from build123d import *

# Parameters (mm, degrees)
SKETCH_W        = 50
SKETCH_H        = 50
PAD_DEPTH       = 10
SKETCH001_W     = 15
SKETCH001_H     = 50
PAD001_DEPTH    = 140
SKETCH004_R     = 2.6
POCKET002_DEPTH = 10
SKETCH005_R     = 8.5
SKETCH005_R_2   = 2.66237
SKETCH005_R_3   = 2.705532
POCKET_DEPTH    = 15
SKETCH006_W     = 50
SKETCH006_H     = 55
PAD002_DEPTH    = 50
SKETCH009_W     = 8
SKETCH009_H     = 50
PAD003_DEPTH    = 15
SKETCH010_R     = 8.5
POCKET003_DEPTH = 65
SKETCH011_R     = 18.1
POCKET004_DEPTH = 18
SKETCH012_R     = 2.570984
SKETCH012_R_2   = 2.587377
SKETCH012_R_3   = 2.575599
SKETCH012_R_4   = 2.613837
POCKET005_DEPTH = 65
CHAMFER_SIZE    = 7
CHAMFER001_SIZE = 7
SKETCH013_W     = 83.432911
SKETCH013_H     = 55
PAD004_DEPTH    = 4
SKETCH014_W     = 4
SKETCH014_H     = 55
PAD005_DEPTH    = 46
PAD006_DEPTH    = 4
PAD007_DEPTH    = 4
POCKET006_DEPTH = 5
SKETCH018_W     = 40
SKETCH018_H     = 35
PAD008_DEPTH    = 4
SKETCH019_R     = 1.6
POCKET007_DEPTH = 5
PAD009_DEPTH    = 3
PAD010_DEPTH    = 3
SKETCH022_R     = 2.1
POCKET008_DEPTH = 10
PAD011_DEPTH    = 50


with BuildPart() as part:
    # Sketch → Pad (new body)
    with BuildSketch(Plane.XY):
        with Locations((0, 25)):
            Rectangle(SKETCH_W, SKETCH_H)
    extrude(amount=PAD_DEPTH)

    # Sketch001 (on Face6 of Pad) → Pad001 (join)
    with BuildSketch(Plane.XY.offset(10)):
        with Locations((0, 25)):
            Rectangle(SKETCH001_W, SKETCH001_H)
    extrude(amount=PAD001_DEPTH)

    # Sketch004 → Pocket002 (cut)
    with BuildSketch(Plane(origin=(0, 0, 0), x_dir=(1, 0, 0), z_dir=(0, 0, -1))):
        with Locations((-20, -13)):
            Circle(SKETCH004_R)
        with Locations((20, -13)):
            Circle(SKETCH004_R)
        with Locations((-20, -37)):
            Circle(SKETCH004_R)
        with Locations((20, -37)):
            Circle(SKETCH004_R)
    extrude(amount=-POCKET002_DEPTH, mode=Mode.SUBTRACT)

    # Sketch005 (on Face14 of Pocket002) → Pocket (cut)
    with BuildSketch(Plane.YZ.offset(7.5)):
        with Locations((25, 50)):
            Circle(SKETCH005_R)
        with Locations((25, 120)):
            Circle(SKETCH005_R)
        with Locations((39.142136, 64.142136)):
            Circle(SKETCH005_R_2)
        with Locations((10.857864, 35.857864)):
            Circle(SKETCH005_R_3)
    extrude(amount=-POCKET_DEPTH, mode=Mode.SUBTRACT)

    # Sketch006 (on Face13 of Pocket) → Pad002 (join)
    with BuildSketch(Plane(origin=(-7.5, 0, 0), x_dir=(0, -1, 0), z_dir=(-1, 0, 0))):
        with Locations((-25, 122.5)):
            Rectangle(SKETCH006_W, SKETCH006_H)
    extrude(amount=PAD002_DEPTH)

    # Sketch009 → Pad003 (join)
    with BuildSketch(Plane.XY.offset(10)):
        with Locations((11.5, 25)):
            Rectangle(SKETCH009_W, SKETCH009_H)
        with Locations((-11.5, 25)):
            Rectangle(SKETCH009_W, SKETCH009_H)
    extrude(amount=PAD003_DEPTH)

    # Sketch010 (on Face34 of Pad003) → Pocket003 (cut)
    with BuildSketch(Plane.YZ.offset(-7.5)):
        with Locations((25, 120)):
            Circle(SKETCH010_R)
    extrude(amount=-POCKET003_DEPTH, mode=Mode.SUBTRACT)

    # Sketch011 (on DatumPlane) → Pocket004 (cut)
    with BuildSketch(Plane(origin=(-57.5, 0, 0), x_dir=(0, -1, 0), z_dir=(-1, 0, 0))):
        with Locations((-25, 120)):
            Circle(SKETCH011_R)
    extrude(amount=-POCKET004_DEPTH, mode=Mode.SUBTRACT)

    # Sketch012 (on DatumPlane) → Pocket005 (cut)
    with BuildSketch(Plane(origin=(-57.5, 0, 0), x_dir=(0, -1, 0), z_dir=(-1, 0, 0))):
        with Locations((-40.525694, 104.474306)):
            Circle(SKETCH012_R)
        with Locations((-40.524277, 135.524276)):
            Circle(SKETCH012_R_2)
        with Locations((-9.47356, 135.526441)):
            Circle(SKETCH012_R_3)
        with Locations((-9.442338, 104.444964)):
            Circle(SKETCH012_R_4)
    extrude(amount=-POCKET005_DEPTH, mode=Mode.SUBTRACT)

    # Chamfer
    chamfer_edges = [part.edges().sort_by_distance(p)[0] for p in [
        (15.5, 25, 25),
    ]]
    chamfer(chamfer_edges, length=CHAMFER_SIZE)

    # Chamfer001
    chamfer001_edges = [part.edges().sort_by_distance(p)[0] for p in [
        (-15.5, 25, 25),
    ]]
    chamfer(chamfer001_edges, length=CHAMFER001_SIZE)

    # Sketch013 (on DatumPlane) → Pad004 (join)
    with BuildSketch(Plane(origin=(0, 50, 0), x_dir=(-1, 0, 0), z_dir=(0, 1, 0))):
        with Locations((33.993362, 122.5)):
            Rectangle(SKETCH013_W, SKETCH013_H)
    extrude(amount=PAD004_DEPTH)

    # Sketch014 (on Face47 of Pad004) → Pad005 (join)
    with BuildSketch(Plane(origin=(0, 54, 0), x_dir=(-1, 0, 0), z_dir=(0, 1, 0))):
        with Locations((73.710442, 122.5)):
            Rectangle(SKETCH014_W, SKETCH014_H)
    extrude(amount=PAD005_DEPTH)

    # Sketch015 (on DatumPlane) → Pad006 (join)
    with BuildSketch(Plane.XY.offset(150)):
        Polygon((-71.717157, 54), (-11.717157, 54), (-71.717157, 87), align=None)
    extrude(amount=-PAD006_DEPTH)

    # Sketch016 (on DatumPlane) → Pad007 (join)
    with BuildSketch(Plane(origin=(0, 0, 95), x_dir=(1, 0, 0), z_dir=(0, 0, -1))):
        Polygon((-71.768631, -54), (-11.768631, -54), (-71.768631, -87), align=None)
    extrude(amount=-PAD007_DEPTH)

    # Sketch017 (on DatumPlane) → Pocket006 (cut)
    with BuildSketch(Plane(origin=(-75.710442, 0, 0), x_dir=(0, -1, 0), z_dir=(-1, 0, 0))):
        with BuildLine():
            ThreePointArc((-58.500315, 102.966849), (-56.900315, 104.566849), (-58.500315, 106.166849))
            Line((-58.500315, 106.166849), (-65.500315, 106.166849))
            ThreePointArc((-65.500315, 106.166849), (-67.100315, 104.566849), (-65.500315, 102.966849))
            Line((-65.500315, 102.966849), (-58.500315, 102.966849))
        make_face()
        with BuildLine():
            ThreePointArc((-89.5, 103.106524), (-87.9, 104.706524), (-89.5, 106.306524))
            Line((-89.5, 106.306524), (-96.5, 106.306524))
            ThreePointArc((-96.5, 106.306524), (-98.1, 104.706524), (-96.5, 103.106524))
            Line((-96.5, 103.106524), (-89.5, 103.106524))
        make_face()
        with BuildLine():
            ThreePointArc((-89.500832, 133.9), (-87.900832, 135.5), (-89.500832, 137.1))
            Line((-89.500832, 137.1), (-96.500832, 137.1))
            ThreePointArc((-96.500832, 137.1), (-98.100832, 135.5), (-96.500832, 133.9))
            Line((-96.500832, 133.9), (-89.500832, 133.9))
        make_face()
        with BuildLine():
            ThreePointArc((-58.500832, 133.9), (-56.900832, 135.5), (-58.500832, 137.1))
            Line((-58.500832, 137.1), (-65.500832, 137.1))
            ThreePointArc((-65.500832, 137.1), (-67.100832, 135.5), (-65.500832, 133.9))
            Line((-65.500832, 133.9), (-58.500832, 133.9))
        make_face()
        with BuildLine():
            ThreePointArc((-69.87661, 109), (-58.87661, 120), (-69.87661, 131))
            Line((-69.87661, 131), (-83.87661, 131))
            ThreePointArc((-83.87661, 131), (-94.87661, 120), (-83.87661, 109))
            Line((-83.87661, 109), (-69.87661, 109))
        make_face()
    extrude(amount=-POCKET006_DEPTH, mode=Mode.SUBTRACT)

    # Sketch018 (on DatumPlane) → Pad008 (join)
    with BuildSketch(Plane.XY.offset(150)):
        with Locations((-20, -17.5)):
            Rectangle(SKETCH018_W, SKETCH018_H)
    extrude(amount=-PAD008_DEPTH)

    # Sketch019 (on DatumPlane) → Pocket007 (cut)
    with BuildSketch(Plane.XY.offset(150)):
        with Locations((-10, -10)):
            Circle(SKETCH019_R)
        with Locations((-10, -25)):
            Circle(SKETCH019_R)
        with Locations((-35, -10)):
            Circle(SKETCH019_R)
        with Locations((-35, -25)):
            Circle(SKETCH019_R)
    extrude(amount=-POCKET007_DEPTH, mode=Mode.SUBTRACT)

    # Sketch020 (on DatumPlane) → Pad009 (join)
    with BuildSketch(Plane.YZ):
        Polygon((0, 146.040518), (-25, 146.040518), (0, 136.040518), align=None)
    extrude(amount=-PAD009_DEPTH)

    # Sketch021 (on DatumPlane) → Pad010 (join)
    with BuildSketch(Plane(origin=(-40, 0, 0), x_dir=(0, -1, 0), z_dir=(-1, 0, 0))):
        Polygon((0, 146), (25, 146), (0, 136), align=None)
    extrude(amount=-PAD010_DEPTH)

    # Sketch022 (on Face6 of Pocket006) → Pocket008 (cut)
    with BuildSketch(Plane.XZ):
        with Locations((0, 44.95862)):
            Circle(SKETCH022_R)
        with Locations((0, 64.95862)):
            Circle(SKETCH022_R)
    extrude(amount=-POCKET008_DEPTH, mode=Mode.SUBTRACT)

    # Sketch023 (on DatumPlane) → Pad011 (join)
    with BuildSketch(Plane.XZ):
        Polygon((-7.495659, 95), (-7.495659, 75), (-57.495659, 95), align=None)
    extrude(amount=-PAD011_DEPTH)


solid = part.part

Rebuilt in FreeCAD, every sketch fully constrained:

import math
import FreeCAD as App
import Part
import Sketcher

V = App.Vector
Q = App.Units.Quantity


def edges_at(feature, points):
    """Names of the edges that pass closest to the given points."""
    edges = feature.Shape.Edges
    near = lambda p: min(range(len(edges)), key=lambda i: edges[i].distToShape(Part.Vertex(*p))[0])
    return sorted({f"Edge{near(p) + 1}" for p in points})


def add_polygon(sketch, points):
    """Adds a closed chain of lines whose ends are joined by coincident constraints."""
    first, n = sketch.GeometryCount, len(points)
    for a, b in zip(points, points[1:] + points[:1]):
        sketch.addGeometry(Part.LineSegment(App.Vector(*a, 0), App.Vector(*b, 0)), False)
    for i in range(n):
        sketch.addConstraint(Sketcher.Constraint("Coincident", first + i, 2, first + (i + 1) % n, 1))

doc = App.newDocument("Part")
body = doc.addObject("PartDesign::Body", "Body")

sketch1 = body.newObject("Sketcher::SketchObject", "Sketch")
sketch1.AttachmentSupport = (doc.getObject("XY_Plane"), [""])
sketch1.MapMode = "FlatFace"
add_polygon(sketch1, [(-25, 50), (-25, 0), (25, 0), (25, 50)])
sketch1.addConstraint(Sketcher.Constraint("Vertical", 0))
sketch1.addConstraint(Sketcher.Constraint("Horizontal", 1))
sketch1.addConstraint(Sketcher.Constraint("Vertical", 2))
sketch1.addConstraint(Sketcher.Constraint("Horizontal", 3))
sketch1.addConstraint(Sketcher.Constraint("Symmetric", 0, 2, 1, 2, -1, 1))
sketch1.addConstraint(Sketcher.Constraint("Equal", 3, 0))
sketch1.addConstraint(Sketcher.Constraint("DistanceX", 1, 1, 1, 2, Q("50 mm")))
pad1 = body.newObject("PartDesign::Pad", "Pad")
pad1.Profile = sketch1
pad1.Length = 10

sketch2 = body.newObject("Sketcher::SketchObject", "Sketch001")
sketch2.AttachmentSupport = (doc.getObject("XY_Plane"), [""])
sketch2.MapMode = "FlatFace"
sketch2.AttachmentOffset = App.Placement(V(0, 0, 10), App.Rotation())
add_polygon(sketch2, [(-8, 50), (-8, 0), (8, 0), (8, 50)])
sketch2.addConstraint(Sketcher.Constraint("Vertical", 0))
sketch2.addConstraint(Sketcher.Constraint("Horizontal", 1))
sketch2.addConstraint(Sketcher.Constraint("Vertical", 2))
sketch2.addConstraint(Sketcher.Constraint("Horizontal", 3))
sketch2.addConstraint(Sketcher.Constraint("Symmetric", 0, 2, 1, 2, -1, 1))
sketch2.addConstraint(Sketcher.Constraint("DistanceX", 1, 1, 1, 2, Q("15 mm")))
sketch2.addConstraint(Sketcher.Constraint("DistanceY", 0, 2, 0, 1, Q("50 mm")))
pad2 = body.newObject("PartDesign::Pad", "Pad001")
pad2.Profile = sketch2
pad2.Length = 140

sketch3 = body.newObject("Sketcher::SketchObject", "Sketch002")
sketch3.AttachmentSupport = (doc.getObject("XY_Plane"), [""])
sketch3.MapMode = "FlatFace"
sketch3.addGeometry(Part.Circle(V(-20, 13, 0), V(0, 0, 1), 2.6), False)
sketch3.addGeometry(Part.Circle(V(20, 13, 0), V(0, 0, 1), 2.6), False)
sketch3.addGeometry(Part.Circle(V(-20, 37, 0), V(0, 0, 1), 2.6), False)
sketch3.addGeometry(Part.Circle(V(20, 37, 0), V(0, 0, 1), 2.6), False)
sketch3.addConstraint(Sketcher.Constraint("Equal", 0, 1))
sketch3.addConstraint(Sketcher.Constraint("Equal", 1, 2))
sketch3.addConstraint(Sketcher.Constraint("Equal", 2, 3))
sketch3.addConstraint(Sketcher.Constraint("Symmetric", 0, 3, 1, 3, -2))
sketch3.addConstraint(Sketcher.Constraint("Symmetric", 2, 3, 3, 3, -2))
sketch3.addConstraint(Sketcher.Constraint("Vertical", 0, 3, 2, 3))
sketch3.addConstraint(Sketcher.Constraint("Diameter", 0, Q("5.2 mm")))
sketch3.addConstraint(Sketcher.Constraint("DistanceX", 0, 3, -1, 1, Q("20 mm")))
sketch3.addConstraint(Sketcher.Constraint("DistanceY", -1, 1, 0, 3, Q("13 mm")))
sketch3.addConstraint(Sketcher.Constraint("DistanceY", -1, 1, 2, 3, Q("37 mm")))
pocket1 = body.newObject("PartDesign::Pocket", "Pocket")
pocket1.Profile = sketch3
pocket1.Length = 10
pocket1.Reversed = True

sketch4 = body.newObject("Sketcher::SketchObject", "Sketch003")
sketch4.AttachmentSupport = (doc.getObject("YZ_Plane"), [""])
sketch4.MapMode = "FlatFace"
sketch4.AttachmentOffset = App.Placement(V(0, 0, 7.5), App.Rotation())
sketch4.addGeometry(Part.Circle(V(25, 50, 0), V(0, 0, 1), 8.5), False)
sketch4.addGeometry(Part.Circle(V(25, 120, 0), V(0, 0, 1), 8.5), False)
sketch4.addGeometry(Part.Circle(V(39.1, 64.1, 0), V(0, 0, 1), 2.7), False)
sketch4.addGeometry(Part.Circle(V(10.9, 35.9, 0), V(0, 0, 1), 2.7), False)
sketch4.addConstraint(Sketcher.Constraint("Equal", 0, 1))
sketch4.addConstraint(Sketcher.Constraint("Vertical", 0, 3, 1, 3))
sketch4.addConstraint(Sketcher.Constraint("Diameter", 0, Q("17 mm")))
sketch4.addConstraint(Sketcher.Constraint("DistanceX", -1, 1, 0, 3, Q("25 mm")))
sketch4.addConstraint(Sketcher.Constraint("DistanceY", -1, 1, 0, 3, Q("50 mm")))
sketch4.addConstraint(Sketcher.Constraint("DistanceY", -1, 1, 1, 3, Q("120 mm")))
sketch4.addConstraint(Sketcher.Constraint("Diameter", 2, Q("5.32474 mm")))
sketch4.addConstraint(Sketcher.Constraint("Diameter", 3, Q("5.411064 mm")))
sketch4.addConstraint(Sketcher.Constraint("DistanceY", 3, 3, 2, 3, Q("28.284272 mm")))
sketch4.addConstraint(Sketcher.Constraint("DistanceX", -1, 1, 2, 3, Q("39.142136 mm")))
sketch4.addConstraint(Sketcher.Constraint("DistanceY", -1, 1, 2, 3, Q("64.142136 mm")))
sketch4.addConstraint(Sketcher.Constraint("DistanceX", -1, 1, 3, 3, Q("10.857864 mm")))
pocket2 = body.newObject("PartDesign::Pocket", "Pocket001")
pocket2.Profile = sketch4
pocket2.Length = 15

sketch5 = body.newObject("Sketcher::SketchObject", "Sketch004")
sketch5.AttachmentSupport = (doc.getObject("YZ_Plane"), [""])
sketch5.MapMode = "FlatFace"
sketch5.AttachmentOffset = App.Placement(V(0, 0, -7.5), App.Rotation())
add_polygon(sketch5, [(50, 150), (50, 95), (0, 95), (0, 150)])
sketch5.addConstraint(Sketcher.Constraint("Vertical", 0))
sketch5.addConstraint(Sketcher.Constraint("Horizontal", 1))
sketch5.addConstraint(Sketcher.Constraint("Vertical", 2))
sketch5.addConstraint(Sketcher.Constraint("Horizontal", 3))
sketch5.addConstraint(Sketcher.Constraint("PointOnObject", 1, 2, -2))
sketch5.addConstraint(Sketcher.Constraint("DistanceX", 1, 2, 1, 1, Q("50 mm")))
sketch5.addConstraint(Sketcher.Constraint("DistanceY", 0, 2, 0, 1, Q("55 mm")))
sketch5.addConstraint(Sketcher.Constraint("DistanceY", -1, 1, 0, 2, Q("95 mm")))
pad3 = body.newObject("PartDesign::Pad", "Pad002")
pad3.Profile = sketch5
pad3.Length = 50
pad3.Reversed = True

sketch6 = body.newObject("Sketcher::SketchObject", "Sketch005")
sketch6.AttachmentSupport = (doc.getObject("XY_Plane"), [""])
sketch6.MapMode = "FlatFace"
sketch6.AttachmentOffset = App.Placement(V(0, 0, 10), App.Rotation())
add_polygon(sketch6, [(8, 50), (8, 0), (16, 0), (16, 50)])
add_polygon(sketch6, [(-16, 50), (-16, 0), (-8, 0), (-8, 50)])
sketch6.addConstraint(Sketcher.Constraint("Vertical", 0))
sketch6.addConstraint(Sketcher.Constraint("Horizontal", 1))
sketch6.addConstraint(Sketcher.Constraint("Vertical", 2))
sketch6.addConstraint(Sketcher.Constraint("Horizontal", 3))
sketch6.addConstraint(Sketcher.Constraint("Vertical", 4))
sketch6.addConstraint(Sketcher.Constraint("Horizontal", 5))
sketch6.addConstraint(Sketcher.Constraint("Vertical", 6))
sketch6.addConstraint(Sketcher.Constraint("Horizontal", 7))
sketch6.addConstraint(Sketcher.Constraint("Symmetric", 1, 2, 4, 2, -1, 1))
sketch6.addConstraint(Sketcher.Constraint("Symmetric", 0, 2, 5, 2, -2))
sketch6.addConstraint(Sketcher.Constraint("Horizontal", 3, 2, 6, 2))
sketch6.addConstraint(Sketcher.Constraint("DistanceX", 1, 1, 1, 2, Q("8 mm")))
sketch6.addConstraint(Sketcher.Constraint("DistanceY", 0, 2, 0, 1, Q("50 mm")))
sketch6.addConstraint(Sketcher.Constraint("DistanceX", 4, 2, 0, 2, Q("23 mm")))
pad4 = body.newObject("PartDesign::Pad", "Pad003")
pad4.Profile = sketch6
pad4.Length = 15

sketch7 = body.newObject("Sketcher::SketchObject", "Sketch006")
sketch7.AttachmentSupport = (doc.getObject("YZ_Plane"), [""])
sketch7.MapMode = "FlatFace"
sketch7.AttachmentOffset = App.Placement(V(0, 0, -7.5), App.Rotation())
sketch7.addGeometry(Part.Circle(V(25, 120, 0), V(0, 0, 1), 8), False)
sketch7.addConstraint(Sketcher.Constraint("Diameter", 0, Q("17 mm")))
sketch7.addConstraint(Sketcher.Constraint("DistanceX", -1, 1, 0, 3, Q("25 mm")))
sketch7.addConstraint(Sketcher.Constraint("DistanceY", -1, 1, 0, 3, Q("120 mm")))
pocket3 = body.newObject("PartDesign::Pocket", "Pocket002")
pocket3.Profile = sketch7
pocket3.Length = 65

sketch8 = body.newObject("Sketcher::SketchObject", "Sketch007")
sketch8.AttachmentSupport = (doc.getObject("YZ_Plane"), [""])
sketch8.MapMode = "FlatFace"
sketch8.AttachmentOffset = App.Placement(V(0, 0, -57.5), App.Rotation())
sketch8.addGeometry(Part.Circle(V(25, 120, 0), V(0, 0, 1), 18), False)
sketch8.addConstraint(Sketcher.Constraint("Diameter", 0, Q("36.2 mm")))
sketch8.addConstraint(Sketcher.Constraint("DistanceX", -1, 1, 0, 3, Q("25 mm")))
sketch8.addConstraint(Sketcher.Constraint("DistanceY", -1, 1, 0, 3, Q("120 mm")))
pocket4 = body.newObject("PartDesign::Pocket", "Pocket003")
pocket4.Profile = sketch8
pocket4.Length = 18
pocket4.Reversed = True

sketch9 = body.newObject("Sketcher::SketchObject", "Sketch008")
sketch9.AttachmentSupport = (doc.getObject("YZ_Plane"), [""])
sketch9.MapMode = "FlatFace"
sketch9.AttachmentOffset = App.Placement(V(0, 0, -57.5), App.Rotation())
sketch9.addGeometry(Part.Circle(V(40.5, 104.5, 0), V(0, 0, 1), 2.6), False)
sketch9.addGeometry(Part.Circle(V(40.5, 135.5, 0), V(0, 0, 1), 2.6), False)
sketch9.addGeometry(Part.Circle(V(9.5, 135.5, 0), V(0, 0, 1), 2.6), False)
sketch9.addGeometry(Part.Circle(V(9.4, 104.4, 0), V(0, 0, 1), 2.6), False)
sketch9.addConstraint(Sketcher.Constraint("Diameter", 0, Q("5.141968 mm")))
sketch9.addConstraint(Sketcher.Constraint("Diameter", 1, Q("5.174754 mm")))
sketch9.addConstraint(Sketcher.Constraint("Diameter", 2, Q("5.151198 mm")))
sketch9.addConstraint(Sketcher.Constraint("Diameter", 3, Q("5.227674 mm")))
sketch9.addConstraint(Sketcher.Constraint("DistanceX", -1, 1, 2, 3, Q("9.47356 mm")))
sketch9.addConstraint(Sketcher.Constraint("DistanceY", -1, 1, 2, 3, Q("135.526441 mm")))
sketch9.addConstraint(Sketcher.Constraint("DistanceY", 0, 3, 1, 3, Q("31.04997 mm")))
sketch9.addConstraint(Sketcher.Constraint("DistanceY", 3, 3, 0, 3, Q("0.029342 mm")))
sketch9.addConstraint(Sketcher.Constraint("DistanceX", 3, 3, 1, 3, Q("31.081939 mm")))
sketch9.addConstraint(Sketcher.Constraint("DistanceX", -1, 1, 0, 3, Q("40.525694 mm")))
sketch9.addConstraint(Sketcher.Constraint("DistanceY", -1, 1, 0, 3, Q("104.474306 mm")))
sketch9.addConstraint(Sketcher.Constraint("DistanceX", -1, 1, 1, 3, Q("40.524277 mm")))
pocket5 = body.newObject("PartDesign::Pocket", "Pocket004")
pocket5.Profile = sketch9
pocket5.Length = 65
pocket5.Reversed = True
doc.recompute()

chamfer = body.newObject("PartDesign::Chamfer", "Chamfer")
chamfer.Base = (pocket5, edges_at(pocket5, [(15.5, 25, 25)]))
chamfer.Size = 7
doc.recompute()

chamfer2 = body.newObject("PartDesign::Chamfer", "Chamfer001")
chamfer2.Base = (chamfer, edges_at(chamfer, [(-15.5, 25, 25)]))
chamfer2.Size = 7

sketch10 = body.newObject("Sketcher::SketchObject", "Sketch009")
sketch10.AttachmentSupport = (doc.getObject("XZ_Plane"), [""])
sketch10.MapMode = "FlatFace"
sketch10.AttachmentOffset = App.Placement(V(0, 0, -50), App.Rotation())
add_polygon(sketch10, [(8, 150), (8, 95), (-76, 95), (-76, 150)])
sketch10.addConstraint(Sketcher.Constraint("Vertical", 0))
sketch10.addConstraint(Sketcher.Constraint("Horizontal", 1))
sketch10.addConstraint(Sketcher.Constraint("Vertical", 2))
sketch10.addConstraint(Sketcher.Constraint("Horizontal", 3))
sketch10.addConstraint(Sketcher.Constraint("DistanceY", 0, 2, 0, 1, Q("55 mm")))
sketch10.addConstraint(Sketcher.Constraint("DistanceY", -1, 1, 0, 2, Q("95 mm")))
sketch10.addConstraint(Sketcher.Constraint("DistanceX", 1, 2, 1, 1, Q("83.432911 mm")))
sketch10.addConstraint(Sketcher.Constraint("DistanceX", -1, 1, 0, 2, Q("7.723094 mm")))
pad5 = body.newObject("PartDesign::Pad", "Pad004")
pad5.Profile = sketch10
pad5.Length = 4
pad5.Reversed = True

sketch11 = body.newObject("Sketcher::SketchObject", "Sketch010")
sketch11.AttachmentSupport = (doc.getObject("XZ_Plane"), [""])
sketch11.MapMode = "FlatFace"
sketch11.AttachmentOffset = App.Placement(V(0, 0, -54), App.Rotation())
add_polygon(sketch11, [(-71.7, 150), (-71.7, 95), (-75.7, 95), (-75.7, 150)])
sketch11.addConstraint(Sketcher.Constraint("Vertical", 0))
sketch11.addConstraint(Sketcher.Constraint("Horizontal", 1))
sketch11.addConstraint(Sketcher.Constraint("Vertical", 2))
sketch11.addConstraint(Sketcher.Constraint("Horizontal", 3))
sketch11.addConstraint(Sketcher.Constraint("DistanceX", 1, 2, 1, 1, Q("4 mm")))
sketch11.addConstraint(Sketcher.Constraint("DistanceY", 0, 2, 0, 1, Q("55 mm")))
sketch11.addConstraint(Sketcher.Constraint("DistanceY", -1, 1, 0, 2, Q("95 mm")))
sketch11.addConstraint(Sketcher.Constraint("DistanceX", 0, 2, -1, 1, Q("71.710442 mm")))
pad6 = body.newObject("PartDesign::Pad", "Pad005")
pad6.Profile = sketch11
pad6.Length = 46
pad6.Reversed = True

sketch12 = body.newObject("Sketcher::SketchObject", "Sketch011")
sketch12.AttachmentSupport = (doc.getObject("XY_Plane"), [""])
sketch12.MapMode = "FlatFace"
sketch12.AttachmentOffset = App.Placement(V(0, 0, 150), App.Rotation())
add_polygon(sketch12, [(-72, 54), (-12, 54), (-72, 87)])
sketch12.addConstraint(Sketcher.Constraint("Horizontal", 0))
sketch12.addConstraint(Sketcher.Constraint("Vertical", 2))
sketch12.addConstraint(Sketcher.Constraint("DistanceX", 0, 1, 0, 2, Q("60 mm")))
sketch12.addConstraint(Sketcher.Constraint("DistanceY", 2, 2, 2, 1, Q("33 mm")))
sketch12.addConstraint(Sketcher.Constraint("DistanceY", -1, 1, 0, 2, Q("54 mm")))
sketch12.addConstraint(Sketcher.Constraint("DistanceX", 0, 2, -1, 1, Q("11.717157 mm")))
pad7 = body.newObject("PartDesign::Pad", "Pad006")
pad7.Profile = sketch12
pad7.Length = 4
pad7.Reversed = True

sketch13 = body.newObject("Sketcher::SketchObject", "Sketch012")
sketch13.AttachmentSupport = (doc.getObject("XY_Plane"), [""])
sketch13.MapMode = "FlatFace"
sketch13.AttachmentOffset = App.Placement(V(0, 0, 95), App.Rotation())
add_polygon(sketch13, [(-12, 54), (-72, 54), (-72, 87)])
sketch13.addConstraint(Sketcher.Constraint("Horizontal", 0))
sketch13.addConstraint(Sketcher.Constraint("Vertical", 1))
sketch13.addConstraint(Sketcher.Constraint("DistanceX", 0, 2, 0, 1, Q("60 mm")))
sketch13.addConstraint(Sketcher.Constraint("DistanceY", 1, 1, 1, 2, Q("33 mm")))
sketch13.addConstraint(Sketcher.Constraint("DistanceY", -1, 1, 0, 2, Q("54 mm")))
sketch13.addConstraint(Sketcher.Constraint("DistanceX", 0, 2, -1, 1, Q("71.768631 mm")))
pad8 = body.newObject("PartDesign::Pad", "Pad007")
pad8.Profile = sketch13
pad8.Length = 4

sketch14 = body.newObject("Sketcher::SketchObject", "Sketch013")
sketch14.AttachmentSupport = (doc.getObject("YZ_Plane"), [""])
sketch14.MapMode = "FlatFace"
sketch14.AttachmentOffset = App.Placement(V(0, 0, -75.710442), App.Rotation())
sketch14.addGeometry(Part.ArcOfCircle(Part.Circle(V(58.5, 104.6, 0), V(0, 0, 1), 1.6), math.radians(90), math.radians(270)), False)
sketch14.addGeometry(Part.LineSegment(V(58.5, 106.2, 0), V(65.5, 106.2, 0)), False)
sketch14.addGeometry(Part.ArcOfCircle(Part.Circle(V(65.5, 104.6, 0), V(0, 0, 1), 1.6), math.radians(-90), math.radians(90)), False)
sketch14.addGeometry(Part.LineSegment(V(65.5, 103, 0), V(58.5, 103, 0)), False)
sketch14.addGeometry(Part.ArcOfCircle(Part.Circle(V(89.5, 104.7, 0), V(0, 0, 1), 1.6), math.radians(90), math.radians(270)), False)
sketch14.addGeometry(Part.LineSegment(V(89.5, 106.3, 0), V(96.5, 106.3, 0)), False)
sketch14.addGeometry(Part.ArcOfCircle(Part.Circle(V(96.5, 104.7, 0), V(0, 0, 1), 1.6), math.radians(-90), math.radians(90)), False)
sketch14.addGeometry(Part.LineSegment(V(96.5, 103.1, 0), V(89.5, 103.1, 0)), False)
sketch14.addGeometry(Part.ArcOfCircle(Part.Circle(V(89.5, 135.5, 0), V(0, 0, 1), 1.6), math.radians(90), math.radians(270)), False)
sketch14.addGeometry(Part.LineSegment(V(89.5, 137.1, 0), V(96.5, 137.1, 0)), False)
sketch14.addGeometry(Part.ArcOfCircle(Part.Circle(V(96.5, 135.5, 0), V(0, 0, 1), 1.6), math.radians(-90), math.radians(90)), False)
sketch14.addGeometry(Part.LineSegment(V(96.5, 133.9, 0), V(89.5, 133.9, 0)), False)
sketch14.addGeometry(Part.ArcOfCircle(Part.Circle(V(58.5, 135.5, 0), V(0, 0, 1), 1.6), math.radians(90), math.radians(270)), False)
sketch14.addGeometry(Part.LineSegment(V(58.5, 137.1, 0), V(65.5, 137.1, 0)), False)
sketch14.addGeometry(Part.ArcOfCircle(Part.Circle(V(65.5, 135.5, 0), V(0, 0, 1), 1.6), math.radians(-90), math.radians(90)), False)
sketch14.addGeometry(Part.LineSegment(V(65.5, 133.9, 0), V(58.5, 133.9, 0)), False)
sketch14.addGeometry(Part.ArcOfCircle(Part.Circle(V(69.9, 120, 0), V(0, 0, 1), 11), math.radians(90), math.radians(270)), False)
sketch14.addGeometry(Part.LineSegment(V(69.9, 131, 0), V(83.9, 131, 0)), False)
sketch14.addGeometry(Part.ArcOfCircle(Part.Circle(V(83.9, 120, 0), V(0, 0, 1), 11), math.radians(-90), math.radians(90)), False)
sketch14.addGeometry(Part.LineSegment(V(83.9, 109, 0), V(69.9, 109, 0)), False)
sketch14.addConstraint(Sketcher.Constraint("Tangent", 0, 1, 1, 1))
sketch14.addConstraint(Sketcher.Constraint("Tangent", 1, 2, 2, 2))
sketch14.addConstraint(Sketcher.Constraint("Tangent", 2, 1, 3, 1))
sketch14.addConstraint(Sketcher.Constraint("Tangent", 3, 2, 0, 2))
sketch14.addConstraint(Sketcher.Constraint("Tangent", 4, 1, 5, 1))
sketch14.addConstraint(Sketcher.Constraint("Tangent", 5, 2, 6, 2))
sketch14.addConstraint(Sketcher.Constraint("Tangent", 6, 1, 7, 1))
sketch14.addConstraint(Sketcher.Constraint("Tangent", 7, 2, 4, 2))
sketch14.addConstraint(Sketcher.Constraint("Tangent", 8, 1, 9, 1))
sketch14.addConstraint(Sketcher.Constraint("Tangent", 9, 2, 10, 2))
sketch14.addConstraint(Sketcher.Constraint("Tangent", 10, 1, 11, 1))
sketch14.addConstraint(Sketcher.Constraint("Tangent", 11, 2, 8, 2))
sketch14.addConstraint(Sketcher.Constraint("Tangent", 12, 1, 13, 1))
sketch14.addConstraint(Sketcher.Constraint("Tangent", 13, 2, 14, 2))
sketch14.addConstraint(Sketcher.Constraint("Tangent", 14, 1, 15, 1))
sketch14.addConstraint(Sketcher.Constraint("Tangent", 15, 2, 12, 2))
sketch14.addConstraint(Sketcher.Constraint("Tangent", 16, 1, 17, 1))
sketch14.addConstraint(Sketcher.Constraint("Tangent", 17, 2, 18, 2))
sketch14.addConstraint(Sketcher.Constraint("Tangent", 18, 1, 19, 1))
sketch14.addConstraint(Sketcher.Constraint("Tangent", 19, 2, 16, 2))
sketch14.addConstraint(Sketcher.Constraint("Horizontal", 1))
sketch14.addConstraint(Sketcher.Constraint("Horizontal", 3))
sketch14.addConstraint(Sketcher.Constraint("Horizontal", 5))
sketch14.addConstraint(Sketcher.Constraint("Horizontal", 7))
sketch14.addConstraint(Sketcher.Constraint("Horizontal", 9))
sketch14.addConstraint(Sketcher.Constraint("Horizontal", 11))
sketch14.addConstraint(Sketcher.Constraint("Horizontal", 13))
sketch14.addConstraint(Sketcher.Constraint("Horizontal", 15))
sketch14.addConstraint(Sketcher.Constraint("Horizontal", 17))
sketch14.addConstraint(Sketcher.Constraint("Horizontal", 19))
sketch14.addConstraint(Sketcher.Constraint("Equal", 2, 4))
sketch14.addConstraint(Sketcher.Constraint("Equal", 6, 8))
sketch14.addConstraint(Sketcher.Constraint("Equal", 10, 12))
sketch14.addConstraint(Sketcher.Constraint("Horizontal", 10, 3, 12, 3))
sketch14.addConstraint(Sketcher.Constraint("Equal", 3, 5))
sketch14.addConstraint(Sketcher.Constraint("Equal", 7, 9))
sketch14.addConstraint(Sketcher.Constraint("Equal", 11, 13))
sketch14.addConstraint(Sketcher.Constraint("Radius", 16, Q("11 mm")))
sketch14.addConstraint(Sketcher.Constraint("Radius", 0, Q("1.6 mm")))
sketch14.addConstraint(Sketcher.Constraint("DistanceX", 1, 1, 1, 2, Q("7 mm")))
sketch14.addConstraint(Sketcher.Constraint("DistanceX", 17, 1, 17, 2, Q("14 mm")))
sketch14.addConstraint(Sketcher.Constraint("DistanceY", -1, 1, 16, 3, Q("120 mm")))
sketch14.addConstraint(Sketcher.Constraint("DistanceX", 12, 3, 8, 3, Q("31 mm")))
sketch14.addConstraint(Sketcher.Constraint("DistanceX", -1, 1, 4, 3, Q("89.5 mm")))
sketch14.addConstraint(Sketcher.Constraint("DistanceY", -1, 1, 8, 3, Q("135.5 mm")))
sketch14.addConstraint(Sketcher.Constraint("DistanceY", -1, 1, 0, 3, Q("104.566849 mm")))
sketch14.addConstraint(Sketcher.Constraint("DistanceX", -1, 1, 16, 3, Q("69.87661 mm")))
sketch14.addConstraint(Sketcher.Constraint("DistanceX", -1, 1, 0, 3, Q("58.500315 mm")))
sketch14.addConstraint(Sketcher.Constraint("DistanceY", -1, 1, 4, 3, Q("104.706524 mm")))
sketch14.addConstraint(Sketcher.Constraint("DistanceX", -1, 1, 8, 3, Q("89.500832 mm")))
pocket6 = body.newObject("PartDesign::Pocket", "Pocket005")
pocket6.Profile = sketch14
pocket6.Length = 5
pocket6.Reversed = True

sketch15 = body.newObject("Sketcher::SketchObject", "Sketch014")
sketch15.AttachmentSupport = (doc.getObject("XY_Plane"), [""])
sketch15.MapMode = "FlatFace"
sketch15.AttachmentOffset = App.Placement(V(0, 0, 150), App.Rotation())
add_polygon(sketch15, [(-40, 0), (-40, -35), (0, -35), (0, 0)])
sketch15.addConstraint(Sketcher.Constraint("Vertical", 0))
sketch15.addConstraint(Sketcher.Constraint("Horizontal", 1))
sketch15.addConstraint(Sketcher.Constraint("Vertical", 2))
sketch15.addConstraint(Sketcher.Constraint("Horizontal", 3))
sketch15.addConstraint(Sketcher.Constraint("Coincident", 2, 2, -1, 1))
sketch15.addConstraint(Sketcher.Constraint("DistanceX", 1, 1, 1, 2, Q("40 mm")))
sketch15.addConstraint(Sketcher.Constraint("DistanceY", 0, 2, 0, 1, Q("35 mm")))
pad9 = body.newObject("PartDesign::Pad", "Pad008")
pad9.Profile = sketch15
pad9.Length = 4
pad9.Reversed = True

sketch16 = body.newObject("Sketcher::SketchObject", "Sketch015")
sketch16.AttachmentSupport = (doc.getObject("XY_Plane"), [""])
sketch16.MapMode = "FlatFace"
sketch16.AttachmentOffset = App.Placement(V(0, 0, 150), App.Rotation())
sketch16.addGeometry(Part.Circle(V(-10, -10, 0), V(0, 0, 1), 1.6), False)
sketch16.addGeometry(Part.Circle(V(-10, -25, 0), V(0, 0, 1), 1.6), False)
sketch16.addGeometry(Part.Circle(V(-35, -10, 0), V(0, 0, 1), 1.6), False)
sketch16.addGeometry(Part.Circle(V(-35, -25, 0), V(0, 0, 1), 1.6), False)
sketch16.addConstraint(Sketcher.Constraint("Equal", 0, 1))
sketch16.addConstraint(Sketcher.Constraint("Equal", 1, 2))
sketch16.addConstraint(Sketcher.Constraint("Equal", 2, 3))
sketch16.addConstraint(Sketcher.Constraint("Horizontal", 0, 3, 2, 3))
sketch16.addConstraint(Sketcher.Constraint("Horizontal", 1, 3, 3, 3))
sketch16.addConstraint(Sketcher.Constraint("Vertical", 0, 3, 1, 3))
sketch16.addConstraint(Sketcher.Constraint("Vertical", 2, 3, 3, 3))
sketch16.addConstraint(Sketcher.Constraint("Diameter", 0, Q("3.2 mm")))
sketch16.addConstraint(Sketcher.Constraint("DistanceX", 0, 3, -1, 1, Q("10 mm")))
sketch16.addConstraint(Sketcher.Constraint("DistanceY", 0, 3, -1, 1, Q("10 mm")))
sketch16.addConstraint(Sketcher.Constraint("DistanceY", 1, 3, -1, 1, Q("25 mm")))
sketch16.addConstraint(Sketcher.Constraint("DistanceX", 2, 3, -1, 1, Q("35 mm")))
pocket7 = body.newObject("PartDesign::Pocket", "Pocket006")
pocket7.Profile = sketch16
pocket7.Length = 5

sketch17 = body.newObject("Sketcher::SketchObject", "Sketch016")
sketch17.AttachmentSupport = (doc.getObject("YZ_Plane"), [""])
sketch17.MapMode = "FlatFace"
add_polygon(sketch17, [(0, 146), (-25, 146), (0, 136)])
sketch17.addConstraint(Sketcher.Constraint("Horizontal", 0))
sketch17.addConstraint(Sketcher.Constraint("Vertical", 2))
sketch17.addConstraint(Sketcher.Constraint("PointOnObject", 1, 2, -2))
sketch17.addConstraint(Sketcher.Constraint("DistanceX", 0, 2, 0, 1, Q("25 mm")))
sketch17.addConstraint(Sketcher.Constraint("DistanceY", 2, 1, 2, 2, Q("10 mm")))
sketch17.addConstraint(Sketcher.Constraint("DistanceY", -1, 1, 0, 2, Q("146.040518 mm")))
pad10 = body.newObject("PartDesign::Pad", "Pad009")
pad10.Profile = sketch17
pad10.Length = 3
pad10.Reversed = True

sketch18 = body.newObject("Sketcher::SketchObject", "Sketch017")
sketch18.AttachmentSupport = (doc.getObject("YZ_Plane"), [""])
sketch18.MapMode = "FlatFace"
sketch18.AttachmentOffset = App.Placement(V(0, 0, -40), App.Rotation())
add_polygon(sketch18, [(-25, 146), (0, 146), (0, 136)])
sketch18.addConstraint(Sketcher.Constraint("Horizontal", 0))
sketch18.addConstraint(Sketcher.Constraint("Vertical", 1))
sketch18.addConstraint(Sketcher.Constraint("PointOnObject", 0, 2, -2))
sketch18.addConstraint(Sketcher.Constraint("DistanceX", 0, 1, 0, 2, Q("25 mm")))
sketch18.addConstraint(Sketcher.Constraint("DistanceY", 1, 2, 1, 1, Q("10 mm")))
sketch18.addConstraint(Sketcher.Constraint("DistanceY", -1, 1, 0, 2, Q("146 mm")))
pad11 = body.newObject("PartDesign::Pad", "Pad010")
pad11.Profile = sketch18
pad11.Length = 3

sketch19 = body.newObject("Sketcher::SketchObject", "Sketch018")
sketch19.AttachmentSupport = (doc.getObject("XZ_Plane"), [""])
sketch19.MapMode = "FlatFace"
sketch19.addGeometry(Part.Circle(V(0, 45, 0), V(0, 0, 1), 2.1), False)
sketch19.addGeometry(Part.Circle(V(0, 65, 0), V(0, 0, 1), 2.1), False)
sketch19.addConstraint(Sketcher.Constraint("Equal", 0, 1))
sketch19.addConstraint(Sketcher.Constraint("PointOnObject", 0, 3, -2))
sketch19.addConstraint(Sketcher.Constraint("PointOnObject", 1, 3, -2))
sketch19.addConstraint(Sketcher.Constraint("Diameter", 0, Q("4.2 mm")))
sketch19.addConstraint(Sketcher.Constraint("DistanceY", 0, 3, 1, 3, Q("20 mm")))
sketch19.addConstraint(Sketcher.Constraint("DistanceY", -1, 1, 0, 3, Q("44.95862 mm")))
pocket8 = body.newObject("PartDesign::Pocket", "Pocket007")
pocket8.Profile = sketch19
pocket8.Length = 10

sketch20 = body.newObject("Sketcher::SketchObject", "Sketch019")
sketch20.AttachmentSupport = (doc.getObject("XZ_Plane"), [""])
sketch20.MapMode = "FlatFace"
add_polygon(sketch20, [(-7, 75), (-7, 95), (-57, 95)])
sketch20.addConstraint(Sketcher.Constraint("Vertical", 0))
sketch20.addConstraint(Sketcher.Constraint("Horizontal", 1))
sketch20.addConstraint(Sketcher.Constraint("DistanceX", 1, 2, 1, 1, Q("50 mm")))
sketch20.addConstraint(Sketcher.Constraint("DistanceY", 0, 1, 0, 2, Q("20 mm")))
sketch20.addConstraint(Sketcher.Constraint("DistanceY", -1, 1, 0, 2, Q("95 mm")))
sketch20.addConstraint(Sketcher.Constraint("DistanceX", 0, 2, -1, 1, Q("7.495659 mm")))
pad12 = body.newObject("PartDesign::Pad", "Pad011")
pad12.Profile = sketch20
pad12.Length = 50
pad12.Reversed = True

doc.recompute()
